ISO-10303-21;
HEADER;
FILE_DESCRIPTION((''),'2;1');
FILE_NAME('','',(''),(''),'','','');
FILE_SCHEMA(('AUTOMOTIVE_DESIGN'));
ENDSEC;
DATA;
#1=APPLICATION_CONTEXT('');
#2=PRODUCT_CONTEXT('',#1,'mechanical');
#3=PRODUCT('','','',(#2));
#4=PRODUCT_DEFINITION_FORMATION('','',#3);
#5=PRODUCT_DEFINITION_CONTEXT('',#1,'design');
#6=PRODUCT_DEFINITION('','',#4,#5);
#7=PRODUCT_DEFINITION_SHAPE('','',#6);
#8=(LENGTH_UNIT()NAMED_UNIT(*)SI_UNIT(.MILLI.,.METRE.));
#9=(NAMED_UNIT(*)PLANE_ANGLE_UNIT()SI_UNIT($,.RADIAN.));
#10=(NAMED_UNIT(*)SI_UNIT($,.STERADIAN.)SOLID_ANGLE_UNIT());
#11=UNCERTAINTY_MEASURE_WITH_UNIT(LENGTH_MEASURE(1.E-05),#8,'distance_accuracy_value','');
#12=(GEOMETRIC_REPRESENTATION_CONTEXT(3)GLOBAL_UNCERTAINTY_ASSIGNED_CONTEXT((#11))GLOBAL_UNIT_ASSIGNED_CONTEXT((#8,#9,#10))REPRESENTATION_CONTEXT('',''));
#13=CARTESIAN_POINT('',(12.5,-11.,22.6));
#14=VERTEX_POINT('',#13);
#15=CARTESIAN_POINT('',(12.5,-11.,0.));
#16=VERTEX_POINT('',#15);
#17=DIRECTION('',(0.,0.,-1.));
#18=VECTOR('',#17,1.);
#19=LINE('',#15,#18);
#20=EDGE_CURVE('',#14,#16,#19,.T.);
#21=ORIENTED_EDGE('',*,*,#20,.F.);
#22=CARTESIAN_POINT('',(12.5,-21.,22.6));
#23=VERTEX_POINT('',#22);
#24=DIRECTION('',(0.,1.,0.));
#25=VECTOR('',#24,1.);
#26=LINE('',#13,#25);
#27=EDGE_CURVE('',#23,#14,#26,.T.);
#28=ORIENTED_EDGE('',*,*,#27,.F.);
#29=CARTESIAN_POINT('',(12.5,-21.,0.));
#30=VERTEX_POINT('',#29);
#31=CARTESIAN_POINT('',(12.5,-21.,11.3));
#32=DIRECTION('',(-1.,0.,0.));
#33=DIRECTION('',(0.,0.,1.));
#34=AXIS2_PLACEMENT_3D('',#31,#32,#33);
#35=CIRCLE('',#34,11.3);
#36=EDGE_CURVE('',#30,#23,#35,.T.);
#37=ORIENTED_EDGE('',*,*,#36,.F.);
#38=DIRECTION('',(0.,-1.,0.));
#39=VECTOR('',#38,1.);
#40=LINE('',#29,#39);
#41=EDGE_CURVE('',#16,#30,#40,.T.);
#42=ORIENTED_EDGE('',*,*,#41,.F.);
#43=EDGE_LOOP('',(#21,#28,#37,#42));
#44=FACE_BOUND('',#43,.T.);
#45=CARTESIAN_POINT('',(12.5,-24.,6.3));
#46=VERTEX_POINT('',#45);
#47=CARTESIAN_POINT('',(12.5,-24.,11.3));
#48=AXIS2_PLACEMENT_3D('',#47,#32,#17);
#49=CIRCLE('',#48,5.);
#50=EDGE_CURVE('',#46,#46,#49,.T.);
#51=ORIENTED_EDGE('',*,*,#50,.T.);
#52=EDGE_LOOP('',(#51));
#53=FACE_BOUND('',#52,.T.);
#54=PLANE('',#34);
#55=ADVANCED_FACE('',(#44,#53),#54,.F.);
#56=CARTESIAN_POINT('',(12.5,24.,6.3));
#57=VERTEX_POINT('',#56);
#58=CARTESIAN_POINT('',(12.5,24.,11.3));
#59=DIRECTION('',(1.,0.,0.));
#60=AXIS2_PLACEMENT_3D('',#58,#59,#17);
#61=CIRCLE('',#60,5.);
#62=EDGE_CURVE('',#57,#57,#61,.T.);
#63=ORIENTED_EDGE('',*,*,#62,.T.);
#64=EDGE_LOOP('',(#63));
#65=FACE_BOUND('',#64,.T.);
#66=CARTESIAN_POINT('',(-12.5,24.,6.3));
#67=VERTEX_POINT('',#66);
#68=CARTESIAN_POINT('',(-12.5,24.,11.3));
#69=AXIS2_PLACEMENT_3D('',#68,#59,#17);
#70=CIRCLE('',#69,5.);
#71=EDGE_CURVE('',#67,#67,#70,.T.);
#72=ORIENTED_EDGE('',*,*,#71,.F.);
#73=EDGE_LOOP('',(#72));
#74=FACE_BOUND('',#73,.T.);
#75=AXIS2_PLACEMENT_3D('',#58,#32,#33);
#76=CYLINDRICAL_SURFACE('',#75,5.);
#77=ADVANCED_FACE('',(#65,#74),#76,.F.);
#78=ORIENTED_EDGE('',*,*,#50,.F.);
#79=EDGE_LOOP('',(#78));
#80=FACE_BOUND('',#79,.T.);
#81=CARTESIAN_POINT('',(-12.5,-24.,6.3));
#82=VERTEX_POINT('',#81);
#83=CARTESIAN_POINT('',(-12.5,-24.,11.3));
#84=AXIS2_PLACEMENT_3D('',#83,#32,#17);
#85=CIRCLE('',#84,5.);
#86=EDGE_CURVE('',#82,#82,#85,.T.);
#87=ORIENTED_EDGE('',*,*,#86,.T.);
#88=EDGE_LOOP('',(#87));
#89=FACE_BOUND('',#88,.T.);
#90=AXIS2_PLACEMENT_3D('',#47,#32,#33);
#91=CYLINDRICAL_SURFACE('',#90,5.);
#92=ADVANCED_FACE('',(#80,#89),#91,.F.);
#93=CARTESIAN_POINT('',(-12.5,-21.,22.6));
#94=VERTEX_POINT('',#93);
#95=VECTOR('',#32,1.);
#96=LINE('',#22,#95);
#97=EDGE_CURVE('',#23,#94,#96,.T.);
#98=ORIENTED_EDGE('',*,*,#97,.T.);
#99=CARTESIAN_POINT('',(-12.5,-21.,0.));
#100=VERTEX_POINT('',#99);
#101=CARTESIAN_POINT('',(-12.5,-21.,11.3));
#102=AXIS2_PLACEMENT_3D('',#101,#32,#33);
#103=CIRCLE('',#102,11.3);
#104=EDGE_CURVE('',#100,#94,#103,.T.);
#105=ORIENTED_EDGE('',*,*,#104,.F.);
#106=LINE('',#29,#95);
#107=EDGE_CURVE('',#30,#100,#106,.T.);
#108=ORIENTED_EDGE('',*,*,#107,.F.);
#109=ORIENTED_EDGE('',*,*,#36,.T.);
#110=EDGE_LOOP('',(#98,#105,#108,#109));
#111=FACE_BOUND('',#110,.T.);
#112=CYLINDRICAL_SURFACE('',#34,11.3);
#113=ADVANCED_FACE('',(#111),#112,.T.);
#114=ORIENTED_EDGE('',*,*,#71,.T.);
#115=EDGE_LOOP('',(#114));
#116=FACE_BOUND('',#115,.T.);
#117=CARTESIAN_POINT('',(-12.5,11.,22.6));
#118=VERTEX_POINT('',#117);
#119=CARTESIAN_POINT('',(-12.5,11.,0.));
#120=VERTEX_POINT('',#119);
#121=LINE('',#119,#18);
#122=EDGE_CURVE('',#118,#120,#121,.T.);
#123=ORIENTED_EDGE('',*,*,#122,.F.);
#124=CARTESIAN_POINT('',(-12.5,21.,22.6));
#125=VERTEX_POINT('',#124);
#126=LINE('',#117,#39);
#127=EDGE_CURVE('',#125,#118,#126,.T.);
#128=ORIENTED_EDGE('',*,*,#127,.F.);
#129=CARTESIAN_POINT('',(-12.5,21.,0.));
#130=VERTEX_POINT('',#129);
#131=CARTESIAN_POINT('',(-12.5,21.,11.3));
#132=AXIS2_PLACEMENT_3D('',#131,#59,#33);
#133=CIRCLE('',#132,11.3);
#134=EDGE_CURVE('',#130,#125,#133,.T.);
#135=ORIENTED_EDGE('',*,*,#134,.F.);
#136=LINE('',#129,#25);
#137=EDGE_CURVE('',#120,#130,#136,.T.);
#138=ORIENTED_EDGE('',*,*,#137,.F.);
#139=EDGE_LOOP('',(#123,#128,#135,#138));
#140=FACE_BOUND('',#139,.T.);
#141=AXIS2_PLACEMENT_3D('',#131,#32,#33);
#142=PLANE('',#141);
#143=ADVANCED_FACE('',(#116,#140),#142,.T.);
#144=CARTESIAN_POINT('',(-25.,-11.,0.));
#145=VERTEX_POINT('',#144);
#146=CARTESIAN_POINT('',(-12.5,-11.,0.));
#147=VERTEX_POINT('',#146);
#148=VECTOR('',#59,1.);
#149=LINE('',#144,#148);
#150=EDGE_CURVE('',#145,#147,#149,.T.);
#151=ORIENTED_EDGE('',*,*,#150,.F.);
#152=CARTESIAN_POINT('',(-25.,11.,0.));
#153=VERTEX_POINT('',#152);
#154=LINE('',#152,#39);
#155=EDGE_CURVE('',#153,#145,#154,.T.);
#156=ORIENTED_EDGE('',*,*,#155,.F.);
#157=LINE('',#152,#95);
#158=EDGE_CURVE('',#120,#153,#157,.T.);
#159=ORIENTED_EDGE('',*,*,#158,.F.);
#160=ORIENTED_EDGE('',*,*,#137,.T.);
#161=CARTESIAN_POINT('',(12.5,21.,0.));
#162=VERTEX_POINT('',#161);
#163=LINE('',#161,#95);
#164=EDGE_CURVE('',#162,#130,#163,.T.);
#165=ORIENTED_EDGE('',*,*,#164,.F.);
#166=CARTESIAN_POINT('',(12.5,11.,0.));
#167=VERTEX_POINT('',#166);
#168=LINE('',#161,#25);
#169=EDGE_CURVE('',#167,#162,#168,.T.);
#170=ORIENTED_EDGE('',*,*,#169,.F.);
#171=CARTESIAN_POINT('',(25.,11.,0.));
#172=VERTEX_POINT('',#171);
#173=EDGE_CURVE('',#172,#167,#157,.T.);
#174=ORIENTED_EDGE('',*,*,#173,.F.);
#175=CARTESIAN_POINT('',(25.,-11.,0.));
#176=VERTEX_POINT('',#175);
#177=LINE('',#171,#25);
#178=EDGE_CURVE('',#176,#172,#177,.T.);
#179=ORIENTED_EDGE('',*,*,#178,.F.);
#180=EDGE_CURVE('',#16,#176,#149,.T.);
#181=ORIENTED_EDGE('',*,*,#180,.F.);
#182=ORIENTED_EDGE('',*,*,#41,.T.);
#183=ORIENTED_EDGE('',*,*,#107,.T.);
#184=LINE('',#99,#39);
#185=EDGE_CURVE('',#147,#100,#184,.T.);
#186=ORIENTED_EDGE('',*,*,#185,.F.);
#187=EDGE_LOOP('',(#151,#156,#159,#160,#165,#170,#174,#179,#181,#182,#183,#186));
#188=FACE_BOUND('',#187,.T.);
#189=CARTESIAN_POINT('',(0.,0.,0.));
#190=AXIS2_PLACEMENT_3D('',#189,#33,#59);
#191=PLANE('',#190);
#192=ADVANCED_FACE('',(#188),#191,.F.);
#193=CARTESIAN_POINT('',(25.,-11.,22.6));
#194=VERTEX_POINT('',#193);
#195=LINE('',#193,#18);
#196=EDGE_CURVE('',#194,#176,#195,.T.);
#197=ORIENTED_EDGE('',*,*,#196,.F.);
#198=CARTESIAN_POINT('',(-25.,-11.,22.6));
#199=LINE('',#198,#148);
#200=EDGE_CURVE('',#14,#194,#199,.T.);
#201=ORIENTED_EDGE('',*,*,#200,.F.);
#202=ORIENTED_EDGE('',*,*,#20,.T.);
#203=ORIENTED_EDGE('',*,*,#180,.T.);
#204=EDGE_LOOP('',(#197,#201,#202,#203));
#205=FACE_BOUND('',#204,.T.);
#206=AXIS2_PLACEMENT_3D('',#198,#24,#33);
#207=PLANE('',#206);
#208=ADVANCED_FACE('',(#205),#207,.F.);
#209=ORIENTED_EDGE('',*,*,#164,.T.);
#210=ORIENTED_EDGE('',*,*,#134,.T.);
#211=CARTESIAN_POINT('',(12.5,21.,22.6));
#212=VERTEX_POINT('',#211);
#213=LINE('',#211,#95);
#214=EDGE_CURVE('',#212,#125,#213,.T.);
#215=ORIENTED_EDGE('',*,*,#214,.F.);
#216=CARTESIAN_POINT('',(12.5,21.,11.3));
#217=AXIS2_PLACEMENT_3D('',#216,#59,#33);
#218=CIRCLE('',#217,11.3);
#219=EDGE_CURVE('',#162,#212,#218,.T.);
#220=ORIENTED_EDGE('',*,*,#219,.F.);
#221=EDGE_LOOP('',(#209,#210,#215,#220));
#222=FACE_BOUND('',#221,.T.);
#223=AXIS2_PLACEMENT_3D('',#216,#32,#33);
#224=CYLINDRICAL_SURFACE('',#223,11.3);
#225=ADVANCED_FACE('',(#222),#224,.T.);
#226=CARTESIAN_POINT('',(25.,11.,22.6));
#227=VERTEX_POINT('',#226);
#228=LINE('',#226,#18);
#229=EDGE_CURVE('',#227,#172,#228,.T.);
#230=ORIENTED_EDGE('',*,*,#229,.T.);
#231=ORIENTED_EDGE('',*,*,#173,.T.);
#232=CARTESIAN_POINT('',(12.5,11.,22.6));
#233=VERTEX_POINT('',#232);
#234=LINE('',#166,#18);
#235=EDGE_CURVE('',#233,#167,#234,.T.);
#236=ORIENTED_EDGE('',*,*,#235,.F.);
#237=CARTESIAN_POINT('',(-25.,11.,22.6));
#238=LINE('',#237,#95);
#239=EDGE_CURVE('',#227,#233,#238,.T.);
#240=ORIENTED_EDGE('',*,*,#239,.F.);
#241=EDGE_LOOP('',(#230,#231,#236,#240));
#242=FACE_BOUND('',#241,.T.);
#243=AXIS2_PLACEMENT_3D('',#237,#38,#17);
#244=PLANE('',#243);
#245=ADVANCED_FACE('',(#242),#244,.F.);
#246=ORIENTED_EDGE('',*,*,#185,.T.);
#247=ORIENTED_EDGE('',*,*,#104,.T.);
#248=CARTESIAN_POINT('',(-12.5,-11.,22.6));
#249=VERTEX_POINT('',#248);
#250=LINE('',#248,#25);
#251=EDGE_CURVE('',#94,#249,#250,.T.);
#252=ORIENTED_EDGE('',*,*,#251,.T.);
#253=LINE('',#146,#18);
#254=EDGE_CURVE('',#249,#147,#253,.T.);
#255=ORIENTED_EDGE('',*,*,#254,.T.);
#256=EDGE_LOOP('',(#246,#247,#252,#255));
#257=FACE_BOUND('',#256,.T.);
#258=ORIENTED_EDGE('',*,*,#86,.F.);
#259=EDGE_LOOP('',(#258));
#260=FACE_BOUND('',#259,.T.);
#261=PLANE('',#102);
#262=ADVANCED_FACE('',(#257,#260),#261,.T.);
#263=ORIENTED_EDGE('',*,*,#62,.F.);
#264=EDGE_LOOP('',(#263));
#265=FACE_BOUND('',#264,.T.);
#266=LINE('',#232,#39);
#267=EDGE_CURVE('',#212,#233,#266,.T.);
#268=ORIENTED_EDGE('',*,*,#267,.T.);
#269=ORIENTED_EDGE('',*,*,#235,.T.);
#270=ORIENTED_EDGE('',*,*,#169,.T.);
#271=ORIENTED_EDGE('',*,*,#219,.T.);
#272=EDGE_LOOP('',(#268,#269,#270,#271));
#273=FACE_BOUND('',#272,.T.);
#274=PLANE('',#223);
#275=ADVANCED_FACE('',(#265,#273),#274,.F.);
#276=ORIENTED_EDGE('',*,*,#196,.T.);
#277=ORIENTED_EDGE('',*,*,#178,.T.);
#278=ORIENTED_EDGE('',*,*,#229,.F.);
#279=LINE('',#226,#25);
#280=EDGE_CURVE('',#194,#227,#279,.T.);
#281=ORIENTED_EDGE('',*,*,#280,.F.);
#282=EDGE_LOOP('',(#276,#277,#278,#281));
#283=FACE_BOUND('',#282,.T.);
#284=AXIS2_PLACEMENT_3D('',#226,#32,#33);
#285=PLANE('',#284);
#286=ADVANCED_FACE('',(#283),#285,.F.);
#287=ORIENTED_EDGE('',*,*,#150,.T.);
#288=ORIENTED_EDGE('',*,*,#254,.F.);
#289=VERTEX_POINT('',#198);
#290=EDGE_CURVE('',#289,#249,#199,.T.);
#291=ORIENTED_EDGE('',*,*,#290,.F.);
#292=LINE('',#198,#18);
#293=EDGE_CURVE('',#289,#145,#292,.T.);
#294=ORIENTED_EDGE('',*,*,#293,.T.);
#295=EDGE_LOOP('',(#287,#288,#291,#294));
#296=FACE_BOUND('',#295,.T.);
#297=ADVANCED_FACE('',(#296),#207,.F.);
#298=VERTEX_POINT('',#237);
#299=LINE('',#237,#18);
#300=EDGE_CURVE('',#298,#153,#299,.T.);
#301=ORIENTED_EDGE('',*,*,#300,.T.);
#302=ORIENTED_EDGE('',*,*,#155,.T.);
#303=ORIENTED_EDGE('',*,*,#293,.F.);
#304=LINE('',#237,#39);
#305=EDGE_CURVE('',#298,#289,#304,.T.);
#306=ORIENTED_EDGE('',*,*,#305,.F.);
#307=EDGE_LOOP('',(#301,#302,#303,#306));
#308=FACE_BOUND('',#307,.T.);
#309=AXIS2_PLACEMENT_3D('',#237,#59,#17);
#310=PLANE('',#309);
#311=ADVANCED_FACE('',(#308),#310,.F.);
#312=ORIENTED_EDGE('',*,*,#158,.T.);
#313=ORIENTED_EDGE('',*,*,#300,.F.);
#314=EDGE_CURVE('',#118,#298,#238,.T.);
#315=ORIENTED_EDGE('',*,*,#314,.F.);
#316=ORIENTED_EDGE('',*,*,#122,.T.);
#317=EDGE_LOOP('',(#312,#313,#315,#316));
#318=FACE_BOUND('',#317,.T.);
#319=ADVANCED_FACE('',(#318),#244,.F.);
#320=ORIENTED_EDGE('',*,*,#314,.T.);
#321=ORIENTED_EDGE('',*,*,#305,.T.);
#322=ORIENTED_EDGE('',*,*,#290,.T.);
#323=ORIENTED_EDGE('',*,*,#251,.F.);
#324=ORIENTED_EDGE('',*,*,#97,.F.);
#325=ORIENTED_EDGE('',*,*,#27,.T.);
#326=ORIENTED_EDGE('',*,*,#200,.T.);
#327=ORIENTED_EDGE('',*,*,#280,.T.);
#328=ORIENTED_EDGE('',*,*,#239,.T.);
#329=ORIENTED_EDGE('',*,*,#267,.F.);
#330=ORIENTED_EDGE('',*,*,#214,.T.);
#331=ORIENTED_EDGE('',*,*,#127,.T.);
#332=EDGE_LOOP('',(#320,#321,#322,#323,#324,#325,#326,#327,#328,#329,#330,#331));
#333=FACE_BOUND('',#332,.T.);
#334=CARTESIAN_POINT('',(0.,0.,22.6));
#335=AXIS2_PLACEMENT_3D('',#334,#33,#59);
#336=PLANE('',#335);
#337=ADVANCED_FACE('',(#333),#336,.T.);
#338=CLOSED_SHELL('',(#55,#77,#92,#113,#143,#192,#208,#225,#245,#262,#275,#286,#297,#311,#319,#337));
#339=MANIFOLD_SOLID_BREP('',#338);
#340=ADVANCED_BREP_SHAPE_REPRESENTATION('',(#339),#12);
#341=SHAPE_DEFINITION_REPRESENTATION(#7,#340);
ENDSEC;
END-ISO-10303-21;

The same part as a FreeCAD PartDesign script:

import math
import FreeCAD as App
import Part
import Sketcher

V = App.Vector
Q = App.Units.Quantity

doc = App.newDocument("Part")
body = doc.addObject("PartDesign::Body", "Body")

# Sketch on XY plane
sketch1 = body.newObject("Sketcher::SketchObject", "Sketch")
sketch1.AttachmentSupport = (doc.getObject("XY_Plane"), [""])
sketch1.MapMode = "FlatFace"
sketch1.addGeometry([
    Part.LineSegment(V(-25, 11, 0), V(-25, -11, 0)),
    Part.LineSegment(V(-25, -11, 0), V(25, -11, 0)),
    Part.LineSegment(V(25, -11, 0), V(25, 11, 0)),
    Part.LineSegment(V(25, 11, 0), V(-25, 11, 0)),
], False)
sketch1.addConstraint([
    Sketcher.Constraint("Coincident", 0, 2, 1, 1),
    Sketcher.Constraint("Coincident", 1, 2, 2, 1),
    Sketcher.Constraint("Coincident", 2, 2, 3, 1),
    Sketcher.Constraint("Coincident", 3, 2, 0, 1),
    Sketcher.Constraint("Vertical", 0),
    Sketcher.Constraint("Horizontal", 1),
    Sketcher.Constraint("Vertical", 2),
    Sketcher.Constraint("Horizontal", 3),
    Sketcher.Constraint("Symmetric", 0, 2, 2, 2, -1, 1),
    Sketcher.Constraint("DistanceX", 1, 1, 1, 2, Q("50 mm")),
    Sketcher.Constraint("DistanceY", 0, 2, 0, 1, Q("22 mm")),
])
pad1 = body.newObject("PartDesign::Pad", "Pad")
pad1.Profile = sketch1
pad1.Length = 22.6

# Sketch on YZ plane
sketch2 = body.newObject("Sketcher::SketchObject", "Sketch001")
sketch2.AttachmentSupport = (doc.getObject("YZ_Plane"), [""])
sketch2.MapMode = "FlatFace"
sketch2.addGeometry([
    Part.LineSegment(V(21, 23, 0), V(11, 23, 0)),  # 0
    Part.LineSegment(V(11, 23, 0), V(11, 0, 0)),  # 1
    Part.LineSegment(V(11, 0, 0), V(21, 0, 0)),  # 2
    Part.ArcOfCircle(Part.Circle(V(21, 11, 0), V(0, 0, 1), 11), math.radians(-90), math.radians(90)),  # 3
    Part.Circle(V(24, 11, 0), V(0, 0, 1), 5),  # 4
], False)
sketch2.addConstraint([
    Sketcher.Constraint("Coincident", 0, 2, 1, 1),
    Sketcher.Constraint("Coincident", 1, 2, 2, 1),
    Sketcher.Constraint("Tangent", 2, 2, 3, 1),
    Sketcher.Constraint("Tangent", 3, 2, 0, 1),
    Sketcher.Constraint("Horizontal", 0),
    Sketcher.Constraint("Vertical", 1),
    Sketcher.Constraint("Horizontal", 2),
    Sketcher.Constraint("PointOnObject", 1, 2, -1),
    Sketcher.Constraint("Horizontal", 3, 3, 4, 3),
    Sketcher.Constraint("Diameter", 4, Q("10 mm")),
    Sketcher.Constraint("Radius", 3, Q("11.3 mm")),
    Sketcher.Constraint("DistanceX", 0, 2, 0, 1, Q("10 mm")),
    Sketcher.Constraint("DistanceX", -1, 1, 3, 3, Q("21 mm")),
    Sketcher.Constraint("DistanceX", -1, 1, 4, 3, Q("24 mm")),
])
pad2 = body.newObject("PartDesign::Pad", "Pad001")
pad2.Profile = sketch2
pad2.Length = 25
pad2.Midplane = True
doc.recompute()

mirrored = body.newObject("PartDesign::Mirrored", "Mirrored")
mirrored.Originals = [pad2]
mirrored.MirrorPlane = (doc.getObject("XZ_Plane"), [""])
body.Tip = mirrored

doc.recompute()
